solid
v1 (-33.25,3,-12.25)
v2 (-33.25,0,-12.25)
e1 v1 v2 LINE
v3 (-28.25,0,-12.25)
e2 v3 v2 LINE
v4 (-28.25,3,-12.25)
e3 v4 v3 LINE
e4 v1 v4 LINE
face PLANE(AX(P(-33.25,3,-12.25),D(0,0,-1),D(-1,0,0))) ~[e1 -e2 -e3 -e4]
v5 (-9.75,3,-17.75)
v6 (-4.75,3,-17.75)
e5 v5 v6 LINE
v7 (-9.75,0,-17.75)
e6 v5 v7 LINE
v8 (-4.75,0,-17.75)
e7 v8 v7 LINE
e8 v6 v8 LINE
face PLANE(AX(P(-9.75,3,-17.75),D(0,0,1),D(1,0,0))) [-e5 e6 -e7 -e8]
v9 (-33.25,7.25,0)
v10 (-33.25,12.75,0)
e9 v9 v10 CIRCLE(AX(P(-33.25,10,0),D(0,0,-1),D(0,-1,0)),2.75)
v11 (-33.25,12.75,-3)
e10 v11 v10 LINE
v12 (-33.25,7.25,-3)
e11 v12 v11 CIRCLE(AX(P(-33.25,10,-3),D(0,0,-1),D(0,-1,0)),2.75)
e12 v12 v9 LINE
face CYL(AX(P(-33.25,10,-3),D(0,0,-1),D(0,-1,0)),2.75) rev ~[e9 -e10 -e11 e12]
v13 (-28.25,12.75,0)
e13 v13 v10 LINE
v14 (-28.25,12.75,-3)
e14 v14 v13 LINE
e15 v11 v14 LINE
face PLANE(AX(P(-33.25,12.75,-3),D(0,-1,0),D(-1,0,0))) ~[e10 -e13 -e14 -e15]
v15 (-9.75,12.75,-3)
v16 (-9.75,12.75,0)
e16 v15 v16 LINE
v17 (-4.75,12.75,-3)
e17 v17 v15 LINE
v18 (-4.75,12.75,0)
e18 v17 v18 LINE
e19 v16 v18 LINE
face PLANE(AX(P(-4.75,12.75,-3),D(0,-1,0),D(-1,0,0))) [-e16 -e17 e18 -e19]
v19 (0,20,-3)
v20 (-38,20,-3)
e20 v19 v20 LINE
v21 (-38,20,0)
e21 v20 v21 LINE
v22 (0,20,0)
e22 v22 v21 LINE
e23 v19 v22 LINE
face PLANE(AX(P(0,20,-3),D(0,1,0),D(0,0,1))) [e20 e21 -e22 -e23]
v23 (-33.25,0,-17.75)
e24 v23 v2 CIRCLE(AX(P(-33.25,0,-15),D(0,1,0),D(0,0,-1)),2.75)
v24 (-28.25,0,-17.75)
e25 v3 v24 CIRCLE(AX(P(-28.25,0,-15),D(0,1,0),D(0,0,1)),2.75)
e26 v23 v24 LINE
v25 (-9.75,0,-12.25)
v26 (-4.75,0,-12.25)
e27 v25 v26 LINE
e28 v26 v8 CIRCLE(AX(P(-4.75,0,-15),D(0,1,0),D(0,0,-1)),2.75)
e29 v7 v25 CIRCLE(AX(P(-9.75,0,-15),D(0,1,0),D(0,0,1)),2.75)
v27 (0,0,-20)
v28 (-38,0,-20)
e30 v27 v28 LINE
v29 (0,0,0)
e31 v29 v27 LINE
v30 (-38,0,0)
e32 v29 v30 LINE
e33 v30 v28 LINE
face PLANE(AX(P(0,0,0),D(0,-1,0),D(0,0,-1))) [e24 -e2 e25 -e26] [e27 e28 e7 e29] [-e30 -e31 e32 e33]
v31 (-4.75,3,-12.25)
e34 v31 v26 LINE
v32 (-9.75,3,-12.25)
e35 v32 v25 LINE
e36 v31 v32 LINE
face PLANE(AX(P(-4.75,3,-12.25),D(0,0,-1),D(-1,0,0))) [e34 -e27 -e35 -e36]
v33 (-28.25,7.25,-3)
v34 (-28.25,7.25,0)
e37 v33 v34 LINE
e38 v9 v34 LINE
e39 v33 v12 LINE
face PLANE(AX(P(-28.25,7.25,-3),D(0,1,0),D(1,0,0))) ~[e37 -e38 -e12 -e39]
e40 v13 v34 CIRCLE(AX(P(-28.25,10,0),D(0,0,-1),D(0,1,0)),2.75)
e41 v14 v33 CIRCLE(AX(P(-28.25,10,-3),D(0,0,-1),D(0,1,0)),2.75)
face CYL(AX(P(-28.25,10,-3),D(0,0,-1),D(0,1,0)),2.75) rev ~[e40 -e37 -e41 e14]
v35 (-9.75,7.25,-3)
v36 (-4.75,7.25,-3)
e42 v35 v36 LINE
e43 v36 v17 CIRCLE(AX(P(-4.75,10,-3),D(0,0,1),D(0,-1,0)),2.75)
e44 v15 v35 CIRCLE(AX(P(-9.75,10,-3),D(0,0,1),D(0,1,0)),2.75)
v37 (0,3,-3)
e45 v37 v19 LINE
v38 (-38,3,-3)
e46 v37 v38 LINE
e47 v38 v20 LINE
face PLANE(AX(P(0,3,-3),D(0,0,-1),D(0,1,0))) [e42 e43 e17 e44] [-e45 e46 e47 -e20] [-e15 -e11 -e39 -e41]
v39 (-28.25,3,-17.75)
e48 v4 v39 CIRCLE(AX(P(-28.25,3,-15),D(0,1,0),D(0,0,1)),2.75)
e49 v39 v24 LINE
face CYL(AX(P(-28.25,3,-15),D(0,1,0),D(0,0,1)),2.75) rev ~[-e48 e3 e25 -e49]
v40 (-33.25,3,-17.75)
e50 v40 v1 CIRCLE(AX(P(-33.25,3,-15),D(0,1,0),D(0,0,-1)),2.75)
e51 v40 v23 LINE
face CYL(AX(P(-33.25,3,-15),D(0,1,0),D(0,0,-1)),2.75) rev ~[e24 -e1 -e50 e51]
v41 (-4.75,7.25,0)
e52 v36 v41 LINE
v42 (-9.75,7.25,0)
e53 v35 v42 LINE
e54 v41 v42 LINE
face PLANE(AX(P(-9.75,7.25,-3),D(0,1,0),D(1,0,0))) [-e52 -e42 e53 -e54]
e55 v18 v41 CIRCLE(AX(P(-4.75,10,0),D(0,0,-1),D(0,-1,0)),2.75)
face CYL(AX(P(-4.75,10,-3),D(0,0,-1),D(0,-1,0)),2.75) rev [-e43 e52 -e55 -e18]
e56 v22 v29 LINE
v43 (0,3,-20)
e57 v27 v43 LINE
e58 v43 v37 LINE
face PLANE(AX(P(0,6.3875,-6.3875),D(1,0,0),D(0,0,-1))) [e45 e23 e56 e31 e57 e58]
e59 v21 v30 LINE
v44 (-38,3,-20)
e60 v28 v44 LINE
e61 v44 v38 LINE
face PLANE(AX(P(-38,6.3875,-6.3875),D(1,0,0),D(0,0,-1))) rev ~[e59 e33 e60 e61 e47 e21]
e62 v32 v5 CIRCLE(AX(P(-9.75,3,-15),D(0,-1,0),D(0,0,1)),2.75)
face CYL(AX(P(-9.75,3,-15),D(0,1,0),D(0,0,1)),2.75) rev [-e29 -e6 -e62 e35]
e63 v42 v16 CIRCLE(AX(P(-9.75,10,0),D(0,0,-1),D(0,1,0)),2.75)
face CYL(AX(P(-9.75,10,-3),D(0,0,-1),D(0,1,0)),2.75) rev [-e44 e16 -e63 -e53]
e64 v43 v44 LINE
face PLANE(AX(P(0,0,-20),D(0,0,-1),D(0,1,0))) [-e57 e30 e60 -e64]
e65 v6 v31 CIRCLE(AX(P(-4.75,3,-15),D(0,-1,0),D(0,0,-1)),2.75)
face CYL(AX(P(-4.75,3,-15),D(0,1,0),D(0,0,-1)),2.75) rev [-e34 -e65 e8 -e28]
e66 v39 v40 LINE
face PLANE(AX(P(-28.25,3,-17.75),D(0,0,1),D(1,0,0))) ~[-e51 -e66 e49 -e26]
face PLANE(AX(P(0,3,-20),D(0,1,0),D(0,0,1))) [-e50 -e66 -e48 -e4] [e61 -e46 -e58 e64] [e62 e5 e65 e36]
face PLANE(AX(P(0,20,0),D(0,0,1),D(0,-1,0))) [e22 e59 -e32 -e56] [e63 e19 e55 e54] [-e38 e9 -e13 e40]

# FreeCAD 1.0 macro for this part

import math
import FreeCAD as App
import Part
import Sketcher

V = App.Vector

doc = App.newDocument("Part")
params = doc.addObject("Spreadsheet::Sheet", "Params")
for row, (alias, value) in enumerate([
    ("sketch1_width", "20 mm"),
    ("sketch1_width2", "3 mm"),
    ("pad1_length", "38 mm"),
    ("sketch2_width", "5 mm"),
    ("sketch2_radius", "2.75 mm"),
    ("sketch3_width", "5 mm"),
    ("sketch3_radius", "2.75 mm"),
], start=1):
    params.set(f"A{row}", alias)
    params.set(f"B{row}", "=" + value)
    params.setAlias(f"B{row}", alias)

body = doc.addObject("PartDesign::Body", "Body")

sketch1 = body.newObject("Sketcher::SketchObject", "Sketch")
sketch1.AttachmentSupport = (doc.getObject("YZ_Plane"), [""])
sketch1.MapMode = "FlatFace"
sketch1.addGeometry(Part.LineSegment(V(20, 0, 0), V(0, 0, 0)), False)
sketch1.addGeometry(Part.LineSegment(V(0, 0, 0), V(0, -20, 0)), False)
sketch1.addGeometry(Part.LineSegment(V(0, -20, 0), V(3, -20, 0)), False)
sketch1.addGeometry(Part.LineSegment(V(3, -20, 0), V(3, -3, 0)), False)
sketch1.addGeometry(Part.LineSegment(V(3, -3, 0), V(20, -3, 0)), False)
sketch1.addGeometry(Part.LineSegment(V(20, -3, 0), V(20, 0, 0)), False)
sketch1.addConstraint(Sketcher.Constraint("Coincident", 0, 2, 1, 1))
sketch1.addConstraint(Sketcher.Constraint("Coincident", 1, 2, 2, 1))
sketch1.addConstraint(Sketcher.Constraint("Coincident", 2, 2, 3, 1))
sketch1.addConstraint(Sketcher.Constraint("Coincident", 3, 2, 4, 1))
sketch1.addConstraint(Sketcher.Constraint("Coincident", 4, 2, 5, 1))
sketch1.addConstraint(Sketcher.Constraint("Coincident", 5, 2, 0, 1))
sketch1.addConstraint(Sketcher.Constraint("Horizontal", 0))
sketch1.addConstraint(Sketcher.Constraint("Vertical", 1))
sketch1.addConstraint(Sketcher.Constraint("Horizontal", 2))
sketch1.addConstraint(Sketcher.Constraint("Vertical", 3))
sketch1.addConstraint(Sketcher.Constraint("Horizontal", 4))
sketch1.addConstraint(Sketcher.Constraint("Vertical", 5))
sketch1.addConstraint(Sketcher.Constraint("Coincident", 0, 2, -1, 1))
sketch1.addConstraint(Sketcher.Constraint("Equal", 0, 1))
sketch1.addConstraint(Sketcher.Constraint("Equal", 4, 3))
sketch1.addConstraint(Sketcher.Constraint("DistanceX", 0, 2, 0, 1, 20.0))
sketch1.addConstraint(Sketcher.Constraint("DistanceX", 2, 1, 2, 2, 3.0))
sketch1.setExpression("Constraints[15]", "Params.sketch1_width")
sketch1.setExpression("Constraints[16]", "Params.sketch1_width2")
pad1 = body.newObject("PartDesign::Pad", "Pad")
pad1.Profile = sketch1
pad1.setExpression("Length", "Params.pad1_length")
pad1.Reversed = True

sketch2 = body.newObject("Sketcher::SketchObject", "Sketch001")
sketch2.AttachmentSupport = (doc.getObject("XY_Plane"), [""])
sketch2.MapMode = "FlatFace"
sketch2.AttachmentOffset = App.Placement(V(0, 0, -3), App.Rotation())
sketch2.addGeometry(Part.LineSegment(V(-9.75, 12.75, 0), V(-4.75, 12.75, 0)), False)
sketch2.addGeometry(Part.ArcOfCircle(Part.Circle(V(-4.75, 10, 0), V(0, 0, 1), 2.75), math.radians(-90), math.radians(90)), False)
sketch2.addGeometry(Part.LineSegment(V(-4.75, 7.25, 0), V(-9.75, 7.25, 0)), False)
sketch2.addGeometry(Part.ArcOfCircle(Part.Circle(V(-9.75, 10, 0), V(0, 0, 1), 2.75), math.radians(90), math.radians(270)), False)
sketch2.addConstraint(Sketcher.Constraint("Tangent", 0, 2, 1, 2))
sketch2.addConstraint(Sketcher.Constraint("Tangent", 1, 1, 2, 1))
sketch2.addConstraint(Sketcher.Constraint("Tangent", 2, 2, 3, 2))
sketch2.addConstraint(Sketcher.Constraint("Tangent", 3, 1, 0, 1))
sketch2.addConstraint(Sketcher.Constraint("Horizontal", 0))
sketch2.addConstraint(Sketcher.Constraint("Horizontal", 2))
sketch2.addConstraint(Sketcher.Constraint("DistanceX", 0, 1, 0, 2, 5.0))
sketch2.addConstraint(Sketcher.Constraint("Radius", 1, 2.75))
sketch2.addConstraint(Sketcher.Constraint("DistanceY", -1, 1, 1, 3, 10.0))
sketch2.addConstraint(Sketcher.Constraint("DistanceX", 1, 3, -1, 1, 4.75))
sketch2.setExpression("Constraints[6]", "Params.sketch2_width")
sketch2.setExpression("Constraints[7]", "Params.sketch2_radius")
pocket1 = body.newObject("PartDesign::Pocket", "Pocket")
pocket1.Profile = sketch2
pocket1.Type = "ThroughAll"
pocket1.Reversed = True

sketch3 = body.newObject("Sketcher::SketchObject", "Sketch002")
sketch3.AttachmentSupport = (doc.getObject("XZ_Plane"), [""])
sketch3.MapMode = "FlatFace"
sketch3.AttachmentOffset = App.Placement(V(0, 0, -3), App.Rotation())
sketch3.addGeometry(Part.LineSegment(V(-9.75, -12.25, 0), V(-4.75, -12.25, 0)), False)
sketch3.addGeometry(Part.ArcOfCircle(Part.Circle(V(-4.75, -15, 0), V(0, 0, 1), 2.75), math.radians(-90), math.radians(90)), False)
sketch3.addGeometry(Part.LineSegment(V(-4.75, -17.75, 0), V(-9.75, -17.75, 0)), False)
sketch3.addGeometry(Part.ArcOfCircle(Part.Circle(V(-9.75, -15, 0), V(0, 0, 1), 2.75), math.radians(90), math.radians(270)), False)
sketch3.addConstraint(Sketcher.Constraint("Tangent", 0, 2, 1, 2))
sketch3.addConstraint(Sketcher.Constraint("Tangent", 1, 1, 2, 1))
sketch3.addConstraint(Sketcher.Constraint("Tangent", 2, 2, 3, 2))
sketch3.addConstraint(Sketcher.Constraint("Tangent", 3, 1, 0, 1))
sketch3.addConstraint(Sketcher.Constraint("Horizontal", 0))
sketch3.addConstraint(Sketcher.Constraint("Horizontal", 2))
sketch3.addConstraint(Sketcher.Constraint("DistanceX", 0, 1, 0, 2, 5.0))
sketch3.addConstraint(Sketcher.Constraint("Radius", 1, 2.75))
sketch3.addConstraint(Sketcher.Constraint("DistanceY", 1, 3, -1, 1, 15.0))
sketch3.addConstraint(Sketcher.Constraint("DistanceX", 1, 3, -1, 1, 4.75))
sketch3.setExpression("Constraints[6]", "Params.sketch3_width")
sketch3.setExpression("Constraints[7]", "Params.sketch3_radius")
pocket2 = body.newObject("PartDesign::Pocket", "Pocket001")
pocket2.Profile = sketch3
pocket2.Type = "ThroughAll"
pocket2.Reversed = True
doc.recompute()

datumplane = body.newObject("PartDesign::Plane", "DatumPlane")
datumplane.AttachmentSupport = (doc.getObject("YZ_Plane"), [""])
datumplane.MapMode = "FlatFace"
datumplane.AttachmentOffset = App.Placement(V(0, 0, -19), App.Rotation())
mirrored = body.newObject("PartDesign::Mirrored", "Mirrored")
mirrored.Originals = [pocket1]
mirrored.MirrorPlane = (datumplane, [""])
body.Tip = mirrored
doc.recompute()

datumplane2 = body.newObject("PartDesign::Plane", "DatumPlane001")
datumplane2.AttachmentSupport = (doc.getObject("YZ_Plane"), [""])
datumplane2.MapMode = "FlatFace"
datumplane2.AttachmentOffset = App.Placement(V(0, 0, -19), App.Rotation())
mirrored2 = body.newObject("PartDesign::Mirrored", "Mirrored001")
mirrored2.Originals = [pocket2]
mirrored2.MirrorPlane = (datumplane2, [""])
body.Tip = mirrored2

doc.recompute()
